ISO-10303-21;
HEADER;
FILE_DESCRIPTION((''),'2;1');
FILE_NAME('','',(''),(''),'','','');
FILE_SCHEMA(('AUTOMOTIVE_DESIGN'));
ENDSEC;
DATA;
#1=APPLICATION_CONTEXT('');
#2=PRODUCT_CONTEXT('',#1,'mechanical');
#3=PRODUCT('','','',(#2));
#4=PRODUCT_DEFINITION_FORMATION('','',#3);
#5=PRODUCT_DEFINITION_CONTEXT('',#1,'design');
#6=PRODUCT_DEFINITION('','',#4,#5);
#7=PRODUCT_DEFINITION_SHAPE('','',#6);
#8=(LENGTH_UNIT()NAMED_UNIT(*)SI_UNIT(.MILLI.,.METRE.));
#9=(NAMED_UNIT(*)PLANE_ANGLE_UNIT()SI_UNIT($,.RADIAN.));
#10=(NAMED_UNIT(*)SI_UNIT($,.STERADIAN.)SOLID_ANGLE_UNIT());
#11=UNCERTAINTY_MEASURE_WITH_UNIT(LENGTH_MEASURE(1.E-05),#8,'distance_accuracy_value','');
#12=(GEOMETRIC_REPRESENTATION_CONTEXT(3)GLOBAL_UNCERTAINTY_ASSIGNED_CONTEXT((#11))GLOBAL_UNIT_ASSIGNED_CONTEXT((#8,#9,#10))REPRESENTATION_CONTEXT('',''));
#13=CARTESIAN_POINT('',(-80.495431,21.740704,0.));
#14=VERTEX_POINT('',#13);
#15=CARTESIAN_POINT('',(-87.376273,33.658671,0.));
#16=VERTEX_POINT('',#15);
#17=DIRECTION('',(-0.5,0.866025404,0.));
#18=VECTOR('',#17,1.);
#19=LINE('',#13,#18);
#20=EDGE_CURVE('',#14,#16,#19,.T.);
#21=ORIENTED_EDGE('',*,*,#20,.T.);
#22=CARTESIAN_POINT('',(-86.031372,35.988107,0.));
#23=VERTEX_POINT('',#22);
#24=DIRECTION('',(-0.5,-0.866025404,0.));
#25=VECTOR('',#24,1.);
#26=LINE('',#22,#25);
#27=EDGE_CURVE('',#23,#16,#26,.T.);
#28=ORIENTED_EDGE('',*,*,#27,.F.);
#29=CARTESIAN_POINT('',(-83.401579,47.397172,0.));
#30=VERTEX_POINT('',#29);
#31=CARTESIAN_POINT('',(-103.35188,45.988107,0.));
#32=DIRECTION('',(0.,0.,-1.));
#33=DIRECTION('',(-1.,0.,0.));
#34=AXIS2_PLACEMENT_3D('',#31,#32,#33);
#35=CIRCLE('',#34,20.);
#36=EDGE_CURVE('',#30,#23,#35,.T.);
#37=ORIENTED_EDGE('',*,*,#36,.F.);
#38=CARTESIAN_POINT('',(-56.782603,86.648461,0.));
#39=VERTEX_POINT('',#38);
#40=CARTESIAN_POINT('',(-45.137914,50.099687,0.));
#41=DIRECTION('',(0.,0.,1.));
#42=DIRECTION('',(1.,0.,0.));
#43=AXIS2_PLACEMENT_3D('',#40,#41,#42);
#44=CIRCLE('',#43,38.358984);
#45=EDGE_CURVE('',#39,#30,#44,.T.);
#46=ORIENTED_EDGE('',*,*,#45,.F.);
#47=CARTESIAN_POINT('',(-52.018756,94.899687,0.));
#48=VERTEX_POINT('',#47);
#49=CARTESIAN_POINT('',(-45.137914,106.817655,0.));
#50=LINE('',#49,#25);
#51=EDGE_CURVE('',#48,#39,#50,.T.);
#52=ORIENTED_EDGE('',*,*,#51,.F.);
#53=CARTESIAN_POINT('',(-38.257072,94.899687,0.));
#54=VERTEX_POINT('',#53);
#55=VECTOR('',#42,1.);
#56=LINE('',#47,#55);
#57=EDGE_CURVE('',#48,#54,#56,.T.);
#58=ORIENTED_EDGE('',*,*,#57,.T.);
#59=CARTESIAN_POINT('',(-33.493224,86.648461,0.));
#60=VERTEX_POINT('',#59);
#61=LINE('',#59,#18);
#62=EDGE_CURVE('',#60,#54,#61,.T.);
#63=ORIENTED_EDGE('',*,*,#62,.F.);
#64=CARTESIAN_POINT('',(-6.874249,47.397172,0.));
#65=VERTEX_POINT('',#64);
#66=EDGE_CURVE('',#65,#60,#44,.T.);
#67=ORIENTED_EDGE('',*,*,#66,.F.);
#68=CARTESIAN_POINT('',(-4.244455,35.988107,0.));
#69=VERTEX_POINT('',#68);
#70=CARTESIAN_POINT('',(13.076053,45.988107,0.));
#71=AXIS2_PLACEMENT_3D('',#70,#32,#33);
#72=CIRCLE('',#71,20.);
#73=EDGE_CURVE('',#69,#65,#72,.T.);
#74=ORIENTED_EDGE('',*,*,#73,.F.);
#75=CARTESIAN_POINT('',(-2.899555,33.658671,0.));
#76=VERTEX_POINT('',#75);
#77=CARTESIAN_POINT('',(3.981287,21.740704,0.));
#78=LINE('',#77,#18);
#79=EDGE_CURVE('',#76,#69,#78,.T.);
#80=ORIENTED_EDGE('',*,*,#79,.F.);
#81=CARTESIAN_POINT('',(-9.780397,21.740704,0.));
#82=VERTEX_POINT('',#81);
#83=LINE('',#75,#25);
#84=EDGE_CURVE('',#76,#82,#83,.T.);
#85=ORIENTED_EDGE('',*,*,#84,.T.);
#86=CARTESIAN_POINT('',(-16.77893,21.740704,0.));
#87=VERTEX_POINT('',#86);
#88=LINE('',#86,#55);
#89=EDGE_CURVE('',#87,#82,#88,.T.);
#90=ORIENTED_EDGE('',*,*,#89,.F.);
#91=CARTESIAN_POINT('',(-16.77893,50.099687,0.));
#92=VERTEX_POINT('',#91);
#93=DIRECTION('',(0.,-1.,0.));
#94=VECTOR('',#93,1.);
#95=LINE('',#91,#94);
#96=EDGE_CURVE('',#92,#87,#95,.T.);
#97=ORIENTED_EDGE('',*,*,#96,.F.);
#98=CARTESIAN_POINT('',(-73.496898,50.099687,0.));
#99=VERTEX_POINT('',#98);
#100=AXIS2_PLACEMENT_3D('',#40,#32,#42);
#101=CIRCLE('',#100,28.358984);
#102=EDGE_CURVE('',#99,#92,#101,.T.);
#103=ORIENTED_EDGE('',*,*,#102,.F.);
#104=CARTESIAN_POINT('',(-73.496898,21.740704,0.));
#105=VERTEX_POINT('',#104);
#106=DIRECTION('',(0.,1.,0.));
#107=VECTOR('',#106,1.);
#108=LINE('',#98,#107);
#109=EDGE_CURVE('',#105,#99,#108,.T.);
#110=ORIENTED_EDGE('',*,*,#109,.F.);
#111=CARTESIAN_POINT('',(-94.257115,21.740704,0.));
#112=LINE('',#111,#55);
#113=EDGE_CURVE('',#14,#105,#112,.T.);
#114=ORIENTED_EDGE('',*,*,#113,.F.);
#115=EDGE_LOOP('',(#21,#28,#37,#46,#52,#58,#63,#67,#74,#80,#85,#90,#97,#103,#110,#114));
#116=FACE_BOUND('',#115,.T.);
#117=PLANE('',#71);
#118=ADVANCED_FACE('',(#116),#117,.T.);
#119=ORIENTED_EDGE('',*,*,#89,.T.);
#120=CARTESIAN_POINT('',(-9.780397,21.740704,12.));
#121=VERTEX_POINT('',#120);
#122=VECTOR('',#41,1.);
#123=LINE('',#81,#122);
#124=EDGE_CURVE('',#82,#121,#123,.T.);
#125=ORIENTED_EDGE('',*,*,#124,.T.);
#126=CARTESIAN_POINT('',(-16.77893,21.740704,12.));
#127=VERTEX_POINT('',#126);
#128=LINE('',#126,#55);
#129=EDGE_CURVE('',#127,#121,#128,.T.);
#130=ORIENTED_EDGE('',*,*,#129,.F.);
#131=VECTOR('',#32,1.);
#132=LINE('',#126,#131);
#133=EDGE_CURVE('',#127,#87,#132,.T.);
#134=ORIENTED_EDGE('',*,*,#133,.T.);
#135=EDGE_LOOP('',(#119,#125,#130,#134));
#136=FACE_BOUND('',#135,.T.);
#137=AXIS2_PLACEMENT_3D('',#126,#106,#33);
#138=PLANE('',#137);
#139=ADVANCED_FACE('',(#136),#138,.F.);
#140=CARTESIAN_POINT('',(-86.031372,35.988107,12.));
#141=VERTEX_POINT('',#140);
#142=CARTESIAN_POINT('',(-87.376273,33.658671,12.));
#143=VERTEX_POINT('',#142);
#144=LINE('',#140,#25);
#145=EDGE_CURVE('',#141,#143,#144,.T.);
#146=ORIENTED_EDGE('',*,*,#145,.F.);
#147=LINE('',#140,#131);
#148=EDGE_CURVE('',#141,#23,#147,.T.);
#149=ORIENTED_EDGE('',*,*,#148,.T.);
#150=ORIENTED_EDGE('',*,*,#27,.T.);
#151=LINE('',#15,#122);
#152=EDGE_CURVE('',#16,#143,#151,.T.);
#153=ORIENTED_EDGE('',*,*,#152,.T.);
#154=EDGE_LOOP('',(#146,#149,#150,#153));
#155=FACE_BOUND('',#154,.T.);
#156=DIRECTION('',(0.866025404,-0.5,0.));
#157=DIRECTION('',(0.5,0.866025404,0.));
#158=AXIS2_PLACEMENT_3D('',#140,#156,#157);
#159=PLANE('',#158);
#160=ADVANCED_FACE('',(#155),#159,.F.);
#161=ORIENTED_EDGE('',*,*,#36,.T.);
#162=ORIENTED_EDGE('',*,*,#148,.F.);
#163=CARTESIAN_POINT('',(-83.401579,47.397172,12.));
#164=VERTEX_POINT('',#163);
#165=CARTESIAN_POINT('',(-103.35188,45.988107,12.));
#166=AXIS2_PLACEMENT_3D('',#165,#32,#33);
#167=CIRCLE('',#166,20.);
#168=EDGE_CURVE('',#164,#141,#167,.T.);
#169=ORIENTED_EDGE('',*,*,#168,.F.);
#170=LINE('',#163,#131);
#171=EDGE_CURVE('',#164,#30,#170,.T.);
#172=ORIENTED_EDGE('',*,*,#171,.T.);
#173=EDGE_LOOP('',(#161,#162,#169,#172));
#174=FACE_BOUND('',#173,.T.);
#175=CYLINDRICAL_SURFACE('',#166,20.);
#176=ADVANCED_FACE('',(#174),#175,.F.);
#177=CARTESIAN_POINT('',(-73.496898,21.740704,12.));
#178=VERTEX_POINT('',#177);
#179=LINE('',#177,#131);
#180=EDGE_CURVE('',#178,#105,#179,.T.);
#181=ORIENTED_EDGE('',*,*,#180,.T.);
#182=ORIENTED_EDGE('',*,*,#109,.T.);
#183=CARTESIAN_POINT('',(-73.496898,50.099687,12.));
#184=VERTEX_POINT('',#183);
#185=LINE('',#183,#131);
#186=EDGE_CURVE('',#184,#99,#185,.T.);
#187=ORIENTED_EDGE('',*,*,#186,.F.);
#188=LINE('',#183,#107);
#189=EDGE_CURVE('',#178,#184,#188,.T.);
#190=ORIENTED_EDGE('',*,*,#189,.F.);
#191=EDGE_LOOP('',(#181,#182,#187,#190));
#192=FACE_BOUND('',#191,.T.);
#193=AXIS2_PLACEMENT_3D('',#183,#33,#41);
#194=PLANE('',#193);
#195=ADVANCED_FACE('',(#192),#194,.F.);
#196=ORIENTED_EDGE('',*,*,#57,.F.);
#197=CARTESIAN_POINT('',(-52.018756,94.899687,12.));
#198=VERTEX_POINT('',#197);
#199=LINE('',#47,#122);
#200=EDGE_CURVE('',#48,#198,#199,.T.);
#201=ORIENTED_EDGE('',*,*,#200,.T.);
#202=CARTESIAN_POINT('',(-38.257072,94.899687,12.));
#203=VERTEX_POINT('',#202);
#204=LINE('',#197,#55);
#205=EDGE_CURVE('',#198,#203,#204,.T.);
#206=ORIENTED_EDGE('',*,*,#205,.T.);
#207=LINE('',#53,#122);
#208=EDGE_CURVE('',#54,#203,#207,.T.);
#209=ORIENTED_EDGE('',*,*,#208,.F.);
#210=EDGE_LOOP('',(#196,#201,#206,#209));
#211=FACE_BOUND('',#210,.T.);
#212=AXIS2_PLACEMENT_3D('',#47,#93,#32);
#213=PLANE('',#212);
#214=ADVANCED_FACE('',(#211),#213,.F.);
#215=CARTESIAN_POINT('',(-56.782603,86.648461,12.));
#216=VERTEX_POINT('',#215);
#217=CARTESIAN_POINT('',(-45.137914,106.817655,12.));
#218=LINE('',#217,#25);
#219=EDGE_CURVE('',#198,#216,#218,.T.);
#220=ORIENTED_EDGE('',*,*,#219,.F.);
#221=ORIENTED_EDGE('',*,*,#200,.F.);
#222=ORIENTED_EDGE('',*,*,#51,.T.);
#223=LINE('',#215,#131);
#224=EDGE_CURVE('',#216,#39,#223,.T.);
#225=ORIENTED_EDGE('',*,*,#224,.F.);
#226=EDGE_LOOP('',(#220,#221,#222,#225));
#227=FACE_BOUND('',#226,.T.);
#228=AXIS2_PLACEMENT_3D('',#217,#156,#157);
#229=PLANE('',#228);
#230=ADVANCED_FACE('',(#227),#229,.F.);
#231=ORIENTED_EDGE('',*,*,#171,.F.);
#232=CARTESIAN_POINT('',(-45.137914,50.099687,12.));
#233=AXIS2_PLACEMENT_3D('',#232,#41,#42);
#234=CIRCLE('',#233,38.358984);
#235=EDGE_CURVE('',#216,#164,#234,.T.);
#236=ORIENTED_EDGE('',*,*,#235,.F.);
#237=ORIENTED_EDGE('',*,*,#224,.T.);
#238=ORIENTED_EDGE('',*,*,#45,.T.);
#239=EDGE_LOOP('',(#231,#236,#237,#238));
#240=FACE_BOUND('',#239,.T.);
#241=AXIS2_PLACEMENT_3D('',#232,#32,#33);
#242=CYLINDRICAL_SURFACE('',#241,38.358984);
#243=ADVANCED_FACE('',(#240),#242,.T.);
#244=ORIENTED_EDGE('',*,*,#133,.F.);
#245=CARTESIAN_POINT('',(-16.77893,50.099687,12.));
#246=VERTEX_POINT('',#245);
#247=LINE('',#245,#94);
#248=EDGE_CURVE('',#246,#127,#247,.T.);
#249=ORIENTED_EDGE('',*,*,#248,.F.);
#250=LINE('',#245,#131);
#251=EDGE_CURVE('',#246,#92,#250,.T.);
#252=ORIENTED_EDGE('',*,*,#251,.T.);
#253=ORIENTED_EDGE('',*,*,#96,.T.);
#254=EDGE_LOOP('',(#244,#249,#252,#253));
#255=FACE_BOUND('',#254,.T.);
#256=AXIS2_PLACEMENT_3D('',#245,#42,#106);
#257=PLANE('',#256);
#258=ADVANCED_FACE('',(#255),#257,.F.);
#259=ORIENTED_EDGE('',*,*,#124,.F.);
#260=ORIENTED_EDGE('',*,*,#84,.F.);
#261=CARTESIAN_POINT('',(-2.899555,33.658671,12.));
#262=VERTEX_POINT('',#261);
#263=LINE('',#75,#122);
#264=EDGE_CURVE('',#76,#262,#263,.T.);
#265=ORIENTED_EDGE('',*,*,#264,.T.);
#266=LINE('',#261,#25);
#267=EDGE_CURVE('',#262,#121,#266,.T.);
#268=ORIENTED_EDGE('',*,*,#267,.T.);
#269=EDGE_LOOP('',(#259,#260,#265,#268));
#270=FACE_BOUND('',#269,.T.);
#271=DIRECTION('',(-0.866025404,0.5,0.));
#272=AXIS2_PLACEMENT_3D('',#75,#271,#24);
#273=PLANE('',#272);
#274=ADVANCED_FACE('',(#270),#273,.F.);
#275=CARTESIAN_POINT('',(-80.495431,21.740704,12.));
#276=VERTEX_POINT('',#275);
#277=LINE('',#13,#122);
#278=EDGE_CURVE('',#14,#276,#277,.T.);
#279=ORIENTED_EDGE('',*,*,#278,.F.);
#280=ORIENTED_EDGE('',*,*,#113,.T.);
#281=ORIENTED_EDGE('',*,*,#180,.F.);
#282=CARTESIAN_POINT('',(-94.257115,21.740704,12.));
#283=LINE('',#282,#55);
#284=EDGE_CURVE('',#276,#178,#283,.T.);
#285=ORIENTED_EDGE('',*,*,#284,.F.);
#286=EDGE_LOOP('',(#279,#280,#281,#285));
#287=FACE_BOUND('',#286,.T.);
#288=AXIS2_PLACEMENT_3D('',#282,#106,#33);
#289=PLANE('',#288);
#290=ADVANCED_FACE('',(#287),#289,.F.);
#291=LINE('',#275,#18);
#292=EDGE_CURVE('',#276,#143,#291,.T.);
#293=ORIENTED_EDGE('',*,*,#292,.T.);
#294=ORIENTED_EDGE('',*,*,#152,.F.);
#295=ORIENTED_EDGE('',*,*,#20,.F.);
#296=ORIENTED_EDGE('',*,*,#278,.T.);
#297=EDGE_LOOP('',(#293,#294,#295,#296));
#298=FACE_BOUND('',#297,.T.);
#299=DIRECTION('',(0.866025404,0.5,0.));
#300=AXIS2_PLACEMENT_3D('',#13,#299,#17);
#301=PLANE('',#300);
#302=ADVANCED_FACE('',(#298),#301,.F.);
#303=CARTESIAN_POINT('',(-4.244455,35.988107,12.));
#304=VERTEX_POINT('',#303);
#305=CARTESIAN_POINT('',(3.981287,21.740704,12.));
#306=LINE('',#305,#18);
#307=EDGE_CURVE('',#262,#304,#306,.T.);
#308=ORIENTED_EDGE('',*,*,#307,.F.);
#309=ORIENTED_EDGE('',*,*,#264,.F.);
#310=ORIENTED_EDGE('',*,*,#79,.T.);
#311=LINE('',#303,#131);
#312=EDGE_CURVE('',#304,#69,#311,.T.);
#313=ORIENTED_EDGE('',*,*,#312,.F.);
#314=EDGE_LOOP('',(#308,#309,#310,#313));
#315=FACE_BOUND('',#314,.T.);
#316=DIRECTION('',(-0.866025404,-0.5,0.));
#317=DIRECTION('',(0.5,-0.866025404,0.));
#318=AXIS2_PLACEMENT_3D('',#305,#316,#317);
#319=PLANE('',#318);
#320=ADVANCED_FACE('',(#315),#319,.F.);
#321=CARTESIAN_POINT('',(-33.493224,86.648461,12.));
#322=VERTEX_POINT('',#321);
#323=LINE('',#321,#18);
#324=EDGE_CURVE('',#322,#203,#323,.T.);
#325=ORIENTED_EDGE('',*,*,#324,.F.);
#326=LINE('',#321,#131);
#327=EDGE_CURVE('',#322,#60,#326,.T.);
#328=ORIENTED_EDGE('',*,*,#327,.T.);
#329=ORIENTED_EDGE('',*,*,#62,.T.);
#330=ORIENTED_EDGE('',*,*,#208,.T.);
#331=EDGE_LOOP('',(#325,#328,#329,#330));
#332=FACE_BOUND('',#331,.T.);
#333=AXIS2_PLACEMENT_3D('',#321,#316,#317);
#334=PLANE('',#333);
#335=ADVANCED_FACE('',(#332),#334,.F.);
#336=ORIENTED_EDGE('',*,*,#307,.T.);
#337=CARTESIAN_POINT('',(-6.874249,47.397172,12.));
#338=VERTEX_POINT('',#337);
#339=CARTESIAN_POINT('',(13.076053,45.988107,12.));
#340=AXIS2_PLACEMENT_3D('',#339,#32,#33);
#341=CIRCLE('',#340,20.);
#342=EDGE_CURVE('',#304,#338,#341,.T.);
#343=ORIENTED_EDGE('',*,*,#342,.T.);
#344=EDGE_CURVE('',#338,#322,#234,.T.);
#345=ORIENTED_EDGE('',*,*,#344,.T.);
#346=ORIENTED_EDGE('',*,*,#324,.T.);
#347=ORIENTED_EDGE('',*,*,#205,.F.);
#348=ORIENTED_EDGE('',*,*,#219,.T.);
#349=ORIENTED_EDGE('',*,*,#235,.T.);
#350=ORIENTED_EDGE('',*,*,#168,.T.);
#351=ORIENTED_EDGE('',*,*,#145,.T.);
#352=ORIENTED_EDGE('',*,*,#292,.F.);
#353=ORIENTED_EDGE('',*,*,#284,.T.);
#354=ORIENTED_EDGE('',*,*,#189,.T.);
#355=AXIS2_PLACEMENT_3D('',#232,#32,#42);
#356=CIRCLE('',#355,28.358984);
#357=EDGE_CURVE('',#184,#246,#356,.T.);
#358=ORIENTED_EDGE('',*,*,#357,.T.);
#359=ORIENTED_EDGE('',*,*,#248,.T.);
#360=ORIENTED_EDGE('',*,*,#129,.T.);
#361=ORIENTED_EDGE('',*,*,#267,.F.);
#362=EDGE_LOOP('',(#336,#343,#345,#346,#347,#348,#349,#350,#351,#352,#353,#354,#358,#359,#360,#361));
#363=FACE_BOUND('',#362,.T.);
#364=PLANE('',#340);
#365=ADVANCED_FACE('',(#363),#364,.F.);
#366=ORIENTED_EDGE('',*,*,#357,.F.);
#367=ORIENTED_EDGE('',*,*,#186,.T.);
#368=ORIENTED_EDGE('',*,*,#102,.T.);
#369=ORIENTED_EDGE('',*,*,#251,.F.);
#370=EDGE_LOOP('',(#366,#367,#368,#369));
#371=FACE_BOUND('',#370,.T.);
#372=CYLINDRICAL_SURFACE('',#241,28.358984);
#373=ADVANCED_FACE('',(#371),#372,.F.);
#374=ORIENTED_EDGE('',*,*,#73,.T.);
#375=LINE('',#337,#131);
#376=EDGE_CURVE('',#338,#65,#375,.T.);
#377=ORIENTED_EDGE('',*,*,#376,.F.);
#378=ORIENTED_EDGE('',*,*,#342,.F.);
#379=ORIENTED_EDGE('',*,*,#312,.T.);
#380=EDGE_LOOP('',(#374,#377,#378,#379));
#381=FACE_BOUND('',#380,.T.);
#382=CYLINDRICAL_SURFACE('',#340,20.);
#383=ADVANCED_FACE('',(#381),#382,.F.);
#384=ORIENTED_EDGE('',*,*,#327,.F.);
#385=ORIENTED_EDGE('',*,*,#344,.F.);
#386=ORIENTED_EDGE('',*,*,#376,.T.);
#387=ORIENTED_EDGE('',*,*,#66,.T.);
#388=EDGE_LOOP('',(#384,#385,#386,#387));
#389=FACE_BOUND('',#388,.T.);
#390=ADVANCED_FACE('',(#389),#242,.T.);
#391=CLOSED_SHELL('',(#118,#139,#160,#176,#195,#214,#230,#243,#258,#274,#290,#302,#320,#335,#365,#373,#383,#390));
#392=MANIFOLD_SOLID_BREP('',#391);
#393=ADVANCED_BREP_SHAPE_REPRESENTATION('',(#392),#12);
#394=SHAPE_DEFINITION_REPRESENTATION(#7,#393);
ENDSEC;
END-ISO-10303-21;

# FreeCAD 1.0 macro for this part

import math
import FreeCAD as App
import Part
import Sketcher
Q = App.Units.Quantity

doc = App.newDocument("Part")
body = doc.addObject("PartDesign::Body", "Body")

sketch1 = body.newObject("Sketcher::SketchObject", "Sketch")
sketch1.AttachmentSupport = (doc.getObject("XY_Plane"), [""])
sketch1.MapMode = "FlatFace"
sketch1.addGeometry([
    Part.LineSegment(App.Vector(-45, 107, 0), App.Vector(-57, 87, 0)),
    Part.ArcOfCircle(Part.Circle(App.Vector(-45, 50, 0), App.Vector(0, 0, 1), 38), math.radians(108), math.radians(184)),
    Part.ArcOfCircle(Part.Circle(App.Vector(-103, 46, 0), App.Vector(0, 0, 1), 20), math.radians(-30), math.radians(4)),
    Part.LineSegment(App.Vector(-86, 36, 0), App.Vector(-94, 22, 0)),
    Part.LineSegment(App.Vector(-94, 22, 0), App.Vector(-73, 22, 0)),
    Part.LineSegment(App.Vector(-73, 22, 0), App.Vector(-73, 50, 0)),
    Part.ArcOfCircle(Part.Circle(App.Vector(-45, 50, 0), App.Vector(0, 0, 1), 28), math.radians(0), math.radians(180)),
    Part.LineSegment(App.Vector(-17, 50, 0), App.Vector(-17, 22, 0)),
    Part.LineSegment(App.Vector(-17, 22, 0), App.Vector(4, 22, 0)),
    Part.LineSegment(App.Vector(4, 22, 0), App.Vector(-4, 36, 0)),
    Part.ArcOfCircle(Part.Circle(App.Vector(13, 46, 0), App.Vector(0, 0, 1), 20), math.radians(176), math.radians(210)),
    Part.ArcOfCircle(Part.Circle(App.Vector(-45, 50, 0), App.Vector(0, 0, 1), 38), math.radians(-4), math.radians(72)),
    Part.LineSegment(App.Vector(-33, 87, 0), App.Vector(-45, 107, 0)),
], False)
sketch1.addConstraint([
    Sketcher.Constraint("Coincident", 0, 2, 1, 1),
    Sketcher.Constraint("Tangent", 1, 2, 2, 2),
    Sketcher.Constraint("Tangent", 2, 1, 3, 1),
    Sketcher.Constraint("Coincident", 3, 2, 4, 1),
    Sketcher.Constraint("Coincident", 4, 2, 5, 1),
    Sketcher.Constraint("Tangent", 5, 2, 6, 2),
    Sketcher.Constraint("Tangent", 6, 1, 7, 1),
    Sketcher.Constraint("Coincident", 7, 2, 8, 1),
    Sketcher.Constraint("Coincident", 8, 2, 9, 1),
    Sketcher.Constraint("Tangent", 9, 2, 10, 2),
    Sketcher.Constraint("Tangent", 10, 1, 11, 1),
    Sketcher.Constraint("Coincident", 11, 2, 12, 1),
    Sketcher.Constraint("Coincident", 12, 2, 0, 1),
    Sketcher.Constraint("Horizontal", 4),
    Sketcher.Constraint("Vertical", 5),
    Sketcher.Constraint("Vertical", 7),
    Sketcher.Constraint("Horizontal", 8),
    Sketcher.Constraint("Coincident", 6, 3, 1, 3),
    Sketcher.Constraint("Coincident", 11, 3, 1, 3),
    Sketcher.Constraint("Equal", 2, 10),
    Sketcher.Constraint("Equal", 1, 11),
    Sketcher.Constraint("Parallel", 0, 3),
    Sketcher.Constraint("Parallel", 9, 12),
    Sketcher.Constraint("Horizontal", 2, 3, 10, 3),
    Sketcher.Constraint("Horizontal", 4, 2, 7, 2),
    Sketcher.Constraint("Horizontal", 2, 1, 9, 2),
    Sketcher.Constraint("Horizontal", 0, 2, 11, 2),
    Sketcher.Constraint("Radius", 2, Q("20 mm")),
    Sketcher.Constraint("Angle", 0, Q("-120 deg")),
    Sketcher.Constraint("Radius", 1, Q("38.358984 mm")),
    Sketcher.Constraint("Radius", 6, Q("28.358984 mm")),
    Sketcher.Constraint("DistanceX", 2, 3, 1, 2, Q("19.950302 mm")),
    Sketcher.Constraint("DistanceX", 3, 2, 11, 3, Q("49.119201 mm")),
    Sketcher.Constraint("Distance", 0, Q("23.289379 mm")),
    Sketcher.Constraint("DistanceX", 2, 3, -1, 1, Q("103.35188 mm")),
    Sketcher.Constraint("DistanceY", -1, 1, 0, 2, Q("86.648461 mm")),
])
pad1 = body.newObject("PartDesign::Pad", "Pad")
pad1.Profile = sketch1
pad1.Length = 12

sketch2 = body.newObject("Sketcher::SketchObject", "Sketch001")
sketch2.AttachmentSupport = (doc.getObject("XY_Plane"), [""])
sketch2.MapMode = "FlatFace"
sketch2.AttachmentOffset = App.Placement(App.Vector(0, 0, 12), App.Rotation())
sketch2.addGeometry([
    Part.LineSegment(App.Vector(-52, 95, 0), App.Vector(-38, 95, 0)),
    Part.LineSegment(App.Vector(-38, 95, 0), App.Vector(-45, 107, 0)),
    Part.LineSegment(App.Vector(-45, 107, 0), App.Vector(-52, 95, 0)),
    Part.LineSegment(App.Vector(-80, 22, 0), App.Vector(-87, 34, 0)),
    Part.LineSegment(App.Vector(-87, 34, 0), App.Vector(-94, 22, 0)),
    Part.LineSegment(App.Vector(-94, 22, 0), App.Vector(-80, 22, 0)),
    Part.LineSegment(App.Vector(-3, 34, 0), App.Vector(-10, 22, 0)),
    Part.LineSegment(App.Vector(-10, 22, 0), App.Vector(4, 22, 0)),
    Part.LineSegment(App.Vector(4, 22, 0), App.Vector(-3, 34, 0)),
], False)
sketch2.addConstraint([
    Sketcher.Constraint("Coincident", 0, 2, 1, 1),
    Sketcher.Constraint("Coincident", 1, 2, 2, 1),
    Sketcher.Constraint("Coincident", 2, 2, 0, 1),
    Sketcher.Constraint("Coincident", 3, 2, 4, 1),
    Sketcher.Constraint("Coincident", 4, 2, 5, 1),
    Sketcher.Constraint("Coincident", 5, 2, 3, 1),
    Sketcher.Constraint("Coincident", 6, 2, 7, 1),
    Sketcher.Constraint("Coincident", 7, 2, 8, 1),
    Sketcher.Constraint("Coincident", 8, 2, 6, 1),
    Sketcher.Constraint("Horizontal", 0),
    Sketcher.Constraint("Horizontal", 5),
    Sketcher.Constraint("Horizontal", 7),
    Sketcher.Constraint("Parallel", 1, 3),
    Sketcher.Constraint("Parallel", 2, 4),
    Sketcher.Constraint("Parallel", 4, 6),
    Sketcher.Constraint("Parallel", 3, 8),
    Sketcher.Constraint("Horizontal", 5, 2, 6, 2),
    Sketcher.Constraint("Horizontal", 3, 2, 8, 2),
    Sketcher.Constraint("Equal", 0, 5),
    Sketcher.Constraint("Equal", 1, 2),
    Sketcher.Constraint("Angle", 1, Q("120 deg")),
    Sketcher.Constraint("DistanceX", 3, 2, 0, 2, Q("49.119201 mm")),
    Sketcher.Constraint("DistanceX", 2, 2, 8, 2, Q("49.119201 mm")),
    Sketcher.Constraint("DistanceX", 0, 1, 0, 2, Q("13.761684 mm")),
    Sketcher.Constraint("DistanceX", 0, 2, -1, 1, Q("38.257072 mm")),
    Sketcher.Constraint("DistanceY", -1, 1, 3, 2, Q("33.658671 mm")),
    Sketcher.Constraint("DistanceY", 4, 2, 1, 2, Q("85.076952 mm")),
])
pocket1 = body.newObject("PartDesign::Pocket", "Pocket")
pocket1.Profile = sketch2
pocket1.Length = 12

doc.recompute()
